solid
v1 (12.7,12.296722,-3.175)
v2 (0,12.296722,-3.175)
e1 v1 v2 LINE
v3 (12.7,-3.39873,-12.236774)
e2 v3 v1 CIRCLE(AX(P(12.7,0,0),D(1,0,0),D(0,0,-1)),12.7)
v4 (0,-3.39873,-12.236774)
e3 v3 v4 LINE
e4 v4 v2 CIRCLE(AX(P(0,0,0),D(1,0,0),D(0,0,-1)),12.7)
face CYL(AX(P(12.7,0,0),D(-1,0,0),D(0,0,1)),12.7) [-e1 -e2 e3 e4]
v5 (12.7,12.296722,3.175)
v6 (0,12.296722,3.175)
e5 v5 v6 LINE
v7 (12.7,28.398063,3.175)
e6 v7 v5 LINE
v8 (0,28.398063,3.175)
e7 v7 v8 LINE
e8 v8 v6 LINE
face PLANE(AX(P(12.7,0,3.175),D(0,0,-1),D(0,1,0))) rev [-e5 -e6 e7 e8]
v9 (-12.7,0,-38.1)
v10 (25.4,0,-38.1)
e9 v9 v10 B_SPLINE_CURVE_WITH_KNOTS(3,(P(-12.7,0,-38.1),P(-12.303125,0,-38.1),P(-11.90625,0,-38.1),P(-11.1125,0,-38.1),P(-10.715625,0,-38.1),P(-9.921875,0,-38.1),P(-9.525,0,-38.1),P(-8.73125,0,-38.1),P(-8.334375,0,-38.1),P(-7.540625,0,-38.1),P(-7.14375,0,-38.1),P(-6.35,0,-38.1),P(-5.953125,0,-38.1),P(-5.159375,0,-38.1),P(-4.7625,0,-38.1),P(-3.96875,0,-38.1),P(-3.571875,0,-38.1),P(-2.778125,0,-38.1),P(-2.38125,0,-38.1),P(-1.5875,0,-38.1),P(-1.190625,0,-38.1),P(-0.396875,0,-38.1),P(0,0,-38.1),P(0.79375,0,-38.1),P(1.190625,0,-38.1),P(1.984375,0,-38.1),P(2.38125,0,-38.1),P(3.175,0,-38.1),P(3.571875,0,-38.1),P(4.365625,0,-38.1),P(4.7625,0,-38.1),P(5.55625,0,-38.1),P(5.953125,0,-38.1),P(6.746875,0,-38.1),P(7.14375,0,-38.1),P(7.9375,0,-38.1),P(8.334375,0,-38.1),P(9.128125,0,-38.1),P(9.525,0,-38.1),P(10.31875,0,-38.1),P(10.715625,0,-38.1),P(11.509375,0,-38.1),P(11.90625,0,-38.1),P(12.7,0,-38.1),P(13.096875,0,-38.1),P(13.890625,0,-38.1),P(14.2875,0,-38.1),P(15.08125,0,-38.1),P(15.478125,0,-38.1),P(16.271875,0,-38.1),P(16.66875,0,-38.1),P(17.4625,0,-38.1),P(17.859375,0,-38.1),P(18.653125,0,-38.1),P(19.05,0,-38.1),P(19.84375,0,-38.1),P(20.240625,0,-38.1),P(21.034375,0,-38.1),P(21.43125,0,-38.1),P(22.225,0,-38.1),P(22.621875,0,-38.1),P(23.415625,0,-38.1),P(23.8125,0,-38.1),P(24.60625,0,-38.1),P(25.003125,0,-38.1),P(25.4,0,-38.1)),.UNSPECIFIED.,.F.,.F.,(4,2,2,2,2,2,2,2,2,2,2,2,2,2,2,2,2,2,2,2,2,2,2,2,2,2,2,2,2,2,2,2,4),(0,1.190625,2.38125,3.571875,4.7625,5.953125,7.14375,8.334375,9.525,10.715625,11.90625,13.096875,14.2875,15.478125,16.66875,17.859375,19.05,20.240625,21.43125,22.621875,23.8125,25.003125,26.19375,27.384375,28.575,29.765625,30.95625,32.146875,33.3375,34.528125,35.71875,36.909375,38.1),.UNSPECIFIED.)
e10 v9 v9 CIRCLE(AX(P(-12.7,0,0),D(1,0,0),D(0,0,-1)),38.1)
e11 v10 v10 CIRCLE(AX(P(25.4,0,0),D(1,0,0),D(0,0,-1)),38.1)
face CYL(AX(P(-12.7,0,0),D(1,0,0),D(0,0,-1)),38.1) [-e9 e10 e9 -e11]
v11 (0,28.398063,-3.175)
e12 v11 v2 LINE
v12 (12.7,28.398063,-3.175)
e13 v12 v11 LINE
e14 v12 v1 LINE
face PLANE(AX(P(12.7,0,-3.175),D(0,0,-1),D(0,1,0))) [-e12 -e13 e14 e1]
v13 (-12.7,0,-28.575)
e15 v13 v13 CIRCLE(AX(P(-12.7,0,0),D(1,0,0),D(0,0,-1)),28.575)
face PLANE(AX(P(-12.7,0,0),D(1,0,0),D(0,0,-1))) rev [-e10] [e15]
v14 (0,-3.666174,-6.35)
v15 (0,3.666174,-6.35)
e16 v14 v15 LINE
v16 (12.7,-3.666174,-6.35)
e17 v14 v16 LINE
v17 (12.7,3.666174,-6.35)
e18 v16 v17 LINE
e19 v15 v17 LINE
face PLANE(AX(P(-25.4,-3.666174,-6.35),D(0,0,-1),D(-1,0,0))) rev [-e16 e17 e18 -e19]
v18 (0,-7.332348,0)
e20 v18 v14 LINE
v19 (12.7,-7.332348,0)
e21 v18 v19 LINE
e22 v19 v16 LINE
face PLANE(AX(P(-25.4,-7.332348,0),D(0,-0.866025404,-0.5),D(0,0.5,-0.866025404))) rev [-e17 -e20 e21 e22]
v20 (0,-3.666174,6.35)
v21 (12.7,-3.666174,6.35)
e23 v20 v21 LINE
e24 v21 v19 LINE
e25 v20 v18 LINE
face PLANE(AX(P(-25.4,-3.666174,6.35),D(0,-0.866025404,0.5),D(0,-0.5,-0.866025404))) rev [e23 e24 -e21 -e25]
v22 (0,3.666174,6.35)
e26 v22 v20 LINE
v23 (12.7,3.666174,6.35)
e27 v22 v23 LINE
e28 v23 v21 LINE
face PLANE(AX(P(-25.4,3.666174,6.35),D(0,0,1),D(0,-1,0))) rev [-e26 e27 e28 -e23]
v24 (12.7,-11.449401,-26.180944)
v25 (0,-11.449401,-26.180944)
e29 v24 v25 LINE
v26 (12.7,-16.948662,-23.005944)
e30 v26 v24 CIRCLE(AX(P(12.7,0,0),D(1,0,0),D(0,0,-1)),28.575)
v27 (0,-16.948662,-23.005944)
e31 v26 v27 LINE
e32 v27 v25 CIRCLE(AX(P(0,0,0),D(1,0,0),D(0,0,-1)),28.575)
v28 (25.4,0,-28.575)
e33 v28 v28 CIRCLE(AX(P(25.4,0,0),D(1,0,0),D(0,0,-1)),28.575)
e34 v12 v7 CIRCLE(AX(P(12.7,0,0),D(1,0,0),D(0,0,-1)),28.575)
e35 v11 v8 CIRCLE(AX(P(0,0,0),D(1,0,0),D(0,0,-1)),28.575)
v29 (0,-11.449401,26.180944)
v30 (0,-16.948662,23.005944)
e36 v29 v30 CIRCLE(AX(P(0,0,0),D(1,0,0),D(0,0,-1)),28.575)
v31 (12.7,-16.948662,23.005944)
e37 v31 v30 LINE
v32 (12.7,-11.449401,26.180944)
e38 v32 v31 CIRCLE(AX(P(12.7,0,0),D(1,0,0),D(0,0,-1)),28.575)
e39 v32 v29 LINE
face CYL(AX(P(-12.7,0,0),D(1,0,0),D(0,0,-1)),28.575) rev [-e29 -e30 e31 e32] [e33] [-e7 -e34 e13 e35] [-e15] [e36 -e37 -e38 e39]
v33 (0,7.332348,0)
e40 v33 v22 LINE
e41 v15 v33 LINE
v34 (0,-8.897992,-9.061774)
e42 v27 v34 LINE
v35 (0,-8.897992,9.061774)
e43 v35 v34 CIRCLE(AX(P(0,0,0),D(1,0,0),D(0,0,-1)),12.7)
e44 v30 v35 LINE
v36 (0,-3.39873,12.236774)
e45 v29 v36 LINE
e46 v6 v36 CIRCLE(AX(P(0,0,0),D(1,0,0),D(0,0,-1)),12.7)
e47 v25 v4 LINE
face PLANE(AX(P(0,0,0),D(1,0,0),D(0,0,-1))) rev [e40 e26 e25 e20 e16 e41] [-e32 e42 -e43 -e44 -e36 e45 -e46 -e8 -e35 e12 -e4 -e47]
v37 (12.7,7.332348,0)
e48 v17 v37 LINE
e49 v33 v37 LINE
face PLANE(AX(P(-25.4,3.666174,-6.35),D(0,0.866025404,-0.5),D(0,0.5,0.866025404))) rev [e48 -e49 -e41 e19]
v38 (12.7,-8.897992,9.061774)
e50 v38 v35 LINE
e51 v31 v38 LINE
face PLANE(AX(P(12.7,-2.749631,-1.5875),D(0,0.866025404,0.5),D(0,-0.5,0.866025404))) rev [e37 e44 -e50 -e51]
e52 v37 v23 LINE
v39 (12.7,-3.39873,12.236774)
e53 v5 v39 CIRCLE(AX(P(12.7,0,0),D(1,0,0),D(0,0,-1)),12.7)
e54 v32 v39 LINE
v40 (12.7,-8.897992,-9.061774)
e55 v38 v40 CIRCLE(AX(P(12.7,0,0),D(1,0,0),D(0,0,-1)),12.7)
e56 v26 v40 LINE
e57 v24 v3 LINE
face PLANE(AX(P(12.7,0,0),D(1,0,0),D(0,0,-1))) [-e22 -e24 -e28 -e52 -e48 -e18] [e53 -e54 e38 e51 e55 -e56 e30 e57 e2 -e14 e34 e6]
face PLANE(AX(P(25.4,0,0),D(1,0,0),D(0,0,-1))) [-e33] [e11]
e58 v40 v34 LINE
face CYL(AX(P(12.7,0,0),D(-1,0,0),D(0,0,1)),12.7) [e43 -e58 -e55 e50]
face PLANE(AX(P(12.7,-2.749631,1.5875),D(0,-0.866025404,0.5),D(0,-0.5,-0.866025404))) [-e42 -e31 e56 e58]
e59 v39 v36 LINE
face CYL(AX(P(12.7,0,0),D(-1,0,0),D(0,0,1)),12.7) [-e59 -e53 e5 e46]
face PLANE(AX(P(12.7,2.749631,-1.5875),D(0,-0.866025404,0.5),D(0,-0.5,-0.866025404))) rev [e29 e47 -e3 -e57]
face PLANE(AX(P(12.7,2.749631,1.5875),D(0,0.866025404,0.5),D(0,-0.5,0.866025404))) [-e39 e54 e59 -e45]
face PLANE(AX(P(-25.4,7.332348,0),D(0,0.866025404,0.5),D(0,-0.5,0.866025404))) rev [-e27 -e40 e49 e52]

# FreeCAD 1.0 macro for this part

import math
import FreeCAD as App
import Part
import Sketcher

V = App.Vector
Q = App.Units.Quantity


def add_polygon(sketch, points):
    """Adds a closed chain of lines whose ends are joined by coincident constraints."""
    first, n = sketch.GeometryCount, len(points)
    for a, b in zip(points, points[1:] + points[:1]):
        sketch.addGeometry(Part.LineSegment(App.Vector(*a, 0), App.Vector(*b, 0)), False)
    for i in range(n):
        sketch.addConstraint(Sketcher.Constraint("Coincident", first + i, 2, first + (i + 1) % n, 1))

doc = App.newDocument("Part")
params = doc.addObject("Spreadsheet::Sheet", "Params")
for row, (alias, value) in enumerate([
    ("sketch1_radius", "0.5 in"),
    ("sketch1_radius2", "1.125 in"),
    ("pad1_length", "0.5 in"),
    ("sketch2_diameter", "3 in"),
    ("sketch2_diameter2", "2.25 in"),
    ("pad2_length", "1.5 in"),
    ("pocket1_length", "1.5 in"),
], start=1):
    params.set(f"A{row}", alias)
    params.set(f"B{row}", "=" + value)
    params.setAlias(f"B{row}", alias)

body = doc.addObject("PartDesign::Body", "Body")

# Sketch on YZ plane
sketch1 = doc.addObject("Sketcher::SketchObject", "Sketch")
body.addObject(sketch1)
sketch1.AttachmentSupport = (doc.YZ_Plane, [""])
sketch1.MapMode = "FlatFace"
sketch1.addGeometry([
    Part.ArcOfCircle(Part.Circle(V(0, 0, 0), V(0, 0, 1), 29), math.radians(-6.38), math.radians(6.38)),  # 0
    Part.LineSegment(V(28, 3, 0), V(12, 3, 0)),  # 1
    Part.ArcOfCircle(Part.Circle(V(0, 0, 0), V(0, 0, 1), 13), math.radians(14), math.radians(106)),  # 2
    Part.LineSegment(V(-3, 12, 0), V(-11, 26, 0)),  # 3
    Part.ArcOfCircle(Part.Circle(V(0, 0, 0), V(0, 0, 1), 29), math.radians(113.62), math.radians(126.38)),  # 4
    Part.LineSegment(V(-17, 23, 0), V(-9, 9, 0)),  # 5
    Part.ArcOfCircle(Part.Circle(V(0, 0, 0), V(0, 0, 1), 13), math.radians(134), math.radians(226)),  # 6
    Part.LineSegment(V(-9, -9, 0), V(-17, -23, 0)),  # 7
    Part.ArcOfCircle(Part.Circle(V(0, 0, 0), V(0, 0, 1), 29), math.radians(-126.38), math.radians(-113.62)),  # 8
    Part.LineSegment(V(-11, -26, 0), V(-3, -12, 0)),  # 9
    Part.ArcOfCircle(Part.Circle(V(0, 0, 0), V(0, 0, 1), 13), math.radians(-106), math.radians(-14)),  # 10
    Part.LineSegment(V(12, -3, 0), V(28, -3, 0)),  # 11
], False)
sketch1.addConstraint([
    Sketcher.Constraint("Coincident", 0, 2, 1, 1),
    Sketcher.Constraint("Coincident", 1, 2, 2, 1),
    Sketcher.Constraint("Coincident", 2, 2, 3, 1),
    Sketcher.Constraint("Coincident", 3, 2, 4, 1),
    Sketcher.Constraint("Coincident", 4, 2, 5, 1),
    Sketcher.Constraint("Coincident", 5, 2, 6, 1),
    Sketcher.Constraint("Coincident", 6, 2, 7, 1),
    Sketcher.Constraint("Coincident", 7, 2, 8, 1),
    Sketcher.Constraint("Coincident", 8, 2, 9, 1),
    Sketcher.Constraint("Coincident", 9, 2, 10, 1),
    Sketcher.Constraint("Coincident", 10, 2, 11, 1),
    Sketcher.Constraint("Coincident", 11, 2, 0, 1),
    Sketcher.Constraint("Horizontal", 1),
    Sketcher.Constraint("Horizontal", 11),
    Sketcher.Constraint("Coincident", 0, 3, -1, 1),
    Sketcher.Constraint("Coincident", 2, 3, -1, 1),
    Sketcher.Constraint("Coincident", 4, 3, -1, 1),
    Sketcher.Constraint("Coincident", 6, 3, -1, 1),
    Sketcher.Constraint("Coincident", 8, 3, -1, 1),
    Sketcher.Constraint("Coincident", 10, 3, -1, 1),
    Sketcher.Constraint("Equal", 0, 4),
    Sketcher.Constraint("Equal", 2, 6),
    Sketcher.Constraint("Equal", 4, 8),
    Sketcher.Constraint("Equal", 6, 10),
    Sketcher.Constraint("Parallel", 3, 5),
    Sketcher.Constraint("Parallel", 7, 9),
    Sketcher.Constraint("Vertical", 5, 2, 6, 2),
    Sketcher.Constraint("Vertical", 4, 2, 7, 2),
    Sketcher.Constraint("Vertical", 3, 2, 8, 2),
    Sketcher.Constraint("Vertical", 1, 2, 10, 2),
    Sketcher.Constraint("Equal", 3, 5),
    Sketcher.Constraint("Radius", 2, Q("0.5 in")),
    Sketcher.Constraint("Angle", 3, Q("120 deg")),
    Sketcher.Constraint("Radius", 0, Q("1.125 in")),
    Sketcher.Constraint("DistanceY", 10, 2, 1, 2, Q("0.25 in")),
    Sketcher.Constraint("DistanceY", 4, 2, 3, 2, Q("0.125 in")),
])
sketch1.setExpression("Constraints[31]", "Params.sketch1_radius")
sketch1.setExpression("Constraints[33]", "Params.sketch1_radius2")
pad1 = doc.addObject("PartDesign::Pad", "Pad")
body.addObject(pad1)
pad1.Profile = sketch1
pad1.setExpression("Length", "Params.pad1_length")

# Sketch on YZ plane
sketch2 = doc.addObject("Sketcher::SketchObject", "Sketch001")
body.addObject(sketch2)
sketch2.AttachmentSupport = (doc.YZ_Plane, [""])
sketch2.MapMode = "FlatFace"
sketch2.AttachmentOffset = App.Placement(V(0, 0, -0.5 * 25.4), App.Rotation())
sketch2.addGeometry([
    Part.Circle(V(0, 0, 0), V(0, 0, 1), 38),
    Part.Circle(V(0, 0, 0), V(0, 0, 1), 29),
], False)
sketch2.addConstraint([
    Sketcher.Constraint("Coincident", 0, 3, -1, 1),
    Sketcher.Constraint("Coincident", 1, 3, -1, 1),
    Sketcher.Constraint("Diameter", 0, Q("3 in")),
    Sketcher.Constraint("Diameter", 1, Q("2.25 in")),
])
sketch2.setExpression("Constraints[2]", "Params.sketch2_diameter")
sketch2.setExpression("Constraints[3]", "Params.sketch2_diameter2")
pad2 = doc.addObject("PartDesign::Pad", "Pad001")
body.addObject(pad2)
pad2.Profile = sketch2
pad2.setExpression("Length", "Params.pad2_length")

# Sketch on YZ plane
sketch3 = doc.addObject("Sketcher::SketchObject", "Sketch002")
body.addObject(sketch3)
sketch3.AttachmentSupport = (doc.YZ_Plane, [""])
sketch3.MapMode = "FlatFace"
sketch3.AttachmentOffset = App.Placement(V(0, 0, 0.5 * 25.4), App.Rotation())
add_polygon(sketch3, [(7, 0), (4, 6), (-4, 6), (-7, 0), (-4, -6), (4, -6)])  # lines 0-5
sketch3.addConstraint([
    Sketcher.Constraint("Horizontal", 1),
    Sketcher.Constraint("Horizontal", 4),
    Sketcher.Constraint("Symmetric", 0, 2, 3, 2, -1, 1),
    Sketcher.Constraint("Symmetric", 2, 2, 5, 2, -1, 1),
    Sketcher.Constraint("PointOnObject", 2, 2, -1),
    Sketcher.Constraint("Parallel", 2, 5),
    Sketcher.Constraint("Vertical", 1, 2, 3, 2),
    Sketcher.Constraint("Angle", 0, Q("120 deg")),
    Sketcher.Constraint("DistanceY", 3, 2, 1, 2, Q("0.5 in")),
    Sketcher.Constraint("DistanceX", 1, 2, 1, 1, 7.332348),
])
pocket1 = doc.addObject("PartDesign::Pocket", "Pocket")
body.addObject(pocket1)
pocket1.Profile = sketch3
pocket1.setExpression("Length", "Params.pocket1_length")

doc.recompute()
